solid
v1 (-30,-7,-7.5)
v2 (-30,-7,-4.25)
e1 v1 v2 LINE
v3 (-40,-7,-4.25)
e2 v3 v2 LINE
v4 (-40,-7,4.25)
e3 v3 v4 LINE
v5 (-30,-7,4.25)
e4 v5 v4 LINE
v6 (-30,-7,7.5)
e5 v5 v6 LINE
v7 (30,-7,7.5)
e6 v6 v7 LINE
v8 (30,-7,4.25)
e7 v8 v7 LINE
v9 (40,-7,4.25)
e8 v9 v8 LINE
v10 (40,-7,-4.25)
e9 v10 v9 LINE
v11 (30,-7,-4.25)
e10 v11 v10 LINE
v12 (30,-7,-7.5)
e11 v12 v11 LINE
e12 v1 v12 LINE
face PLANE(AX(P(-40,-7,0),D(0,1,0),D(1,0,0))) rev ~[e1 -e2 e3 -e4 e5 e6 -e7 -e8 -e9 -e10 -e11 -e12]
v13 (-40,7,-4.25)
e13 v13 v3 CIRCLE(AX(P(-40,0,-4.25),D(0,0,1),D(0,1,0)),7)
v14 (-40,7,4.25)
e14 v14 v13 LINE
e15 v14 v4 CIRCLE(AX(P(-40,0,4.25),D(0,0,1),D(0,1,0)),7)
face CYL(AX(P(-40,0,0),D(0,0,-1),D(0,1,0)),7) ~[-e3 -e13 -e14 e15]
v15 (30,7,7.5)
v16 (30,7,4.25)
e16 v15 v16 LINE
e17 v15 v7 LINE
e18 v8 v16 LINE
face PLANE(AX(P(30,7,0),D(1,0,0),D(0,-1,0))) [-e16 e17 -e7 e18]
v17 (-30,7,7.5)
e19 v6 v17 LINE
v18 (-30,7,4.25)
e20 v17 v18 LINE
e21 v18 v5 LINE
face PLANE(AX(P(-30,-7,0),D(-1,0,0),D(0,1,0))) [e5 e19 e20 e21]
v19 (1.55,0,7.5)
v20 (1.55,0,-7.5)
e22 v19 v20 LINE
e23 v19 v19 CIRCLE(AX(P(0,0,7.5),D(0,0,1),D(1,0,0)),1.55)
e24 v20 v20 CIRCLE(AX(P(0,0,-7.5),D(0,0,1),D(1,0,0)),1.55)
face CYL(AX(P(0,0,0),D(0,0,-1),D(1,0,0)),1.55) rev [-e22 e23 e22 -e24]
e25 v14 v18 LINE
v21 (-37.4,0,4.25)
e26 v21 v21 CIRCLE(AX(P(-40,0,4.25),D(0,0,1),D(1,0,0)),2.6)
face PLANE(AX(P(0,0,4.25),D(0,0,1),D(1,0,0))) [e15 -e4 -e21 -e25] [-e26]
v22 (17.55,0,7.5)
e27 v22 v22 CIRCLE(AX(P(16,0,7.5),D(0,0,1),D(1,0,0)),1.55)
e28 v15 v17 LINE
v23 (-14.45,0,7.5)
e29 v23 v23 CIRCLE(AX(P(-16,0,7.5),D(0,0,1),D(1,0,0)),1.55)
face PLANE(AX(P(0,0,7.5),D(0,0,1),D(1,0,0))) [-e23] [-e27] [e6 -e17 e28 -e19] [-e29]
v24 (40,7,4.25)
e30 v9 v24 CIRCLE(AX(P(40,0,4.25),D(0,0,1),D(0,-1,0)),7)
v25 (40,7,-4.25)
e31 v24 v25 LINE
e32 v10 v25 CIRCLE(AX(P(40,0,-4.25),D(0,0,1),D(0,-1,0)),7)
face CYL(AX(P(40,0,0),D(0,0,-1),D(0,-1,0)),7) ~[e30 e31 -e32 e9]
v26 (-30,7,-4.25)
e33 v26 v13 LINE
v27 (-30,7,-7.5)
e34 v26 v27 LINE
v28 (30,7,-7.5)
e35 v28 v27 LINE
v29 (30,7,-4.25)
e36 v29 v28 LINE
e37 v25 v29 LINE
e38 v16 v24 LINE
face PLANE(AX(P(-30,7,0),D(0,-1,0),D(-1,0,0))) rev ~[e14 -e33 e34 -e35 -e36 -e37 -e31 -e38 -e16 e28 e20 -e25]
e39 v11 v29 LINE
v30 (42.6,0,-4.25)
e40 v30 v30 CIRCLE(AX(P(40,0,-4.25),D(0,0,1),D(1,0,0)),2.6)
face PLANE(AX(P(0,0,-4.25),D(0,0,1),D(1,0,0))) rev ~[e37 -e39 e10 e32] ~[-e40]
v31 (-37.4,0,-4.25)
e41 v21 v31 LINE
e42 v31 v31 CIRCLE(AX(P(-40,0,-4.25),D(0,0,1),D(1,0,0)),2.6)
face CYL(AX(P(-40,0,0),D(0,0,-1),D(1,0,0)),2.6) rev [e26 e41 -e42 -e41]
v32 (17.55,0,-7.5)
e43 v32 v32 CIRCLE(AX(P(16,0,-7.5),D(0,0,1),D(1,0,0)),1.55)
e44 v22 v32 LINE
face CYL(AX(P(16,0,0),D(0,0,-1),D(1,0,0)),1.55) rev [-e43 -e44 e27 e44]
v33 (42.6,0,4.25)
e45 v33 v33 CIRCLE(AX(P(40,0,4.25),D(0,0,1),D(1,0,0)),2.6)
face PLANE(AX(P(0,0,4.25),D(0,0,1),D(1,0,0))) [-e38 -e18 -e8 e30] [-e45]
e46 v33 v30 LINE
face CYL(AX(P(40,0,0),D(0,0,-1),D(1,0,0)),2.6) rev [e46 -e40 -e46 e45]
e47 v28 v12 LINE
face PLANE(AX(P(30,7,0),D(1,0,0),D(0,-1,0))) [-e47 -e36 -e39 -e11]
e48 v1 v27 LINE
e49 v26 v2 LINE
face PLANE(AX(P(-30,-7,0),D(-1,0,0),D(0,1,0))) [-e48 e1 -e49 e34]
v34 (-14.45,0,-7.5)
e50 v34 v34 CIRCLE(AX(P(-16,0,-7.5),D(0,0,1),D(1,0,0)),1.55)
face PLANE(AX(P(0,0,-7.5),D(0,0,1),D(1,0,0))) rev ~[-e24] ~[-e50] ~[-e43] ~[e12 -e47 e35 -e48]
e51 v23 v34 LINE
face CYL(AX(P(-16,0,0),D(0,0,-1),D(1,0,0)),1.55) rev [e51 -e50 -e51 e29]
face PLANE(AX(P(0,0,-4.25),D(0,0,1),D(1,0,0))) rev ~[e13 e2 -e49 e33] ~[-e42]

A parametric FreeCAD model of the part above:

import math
import FreeCAD as App
import Part
import Sketcher

V = App.Vector
Q = App.Units.Quantity


def add_polygon(sketch, points):
    """Adds a closed chain of lines whose ends are joined by coincident constraints."""
    first, n = sketch.GeometryCount, len(points)
    for a, b in zip(points, points[1:] + points[:1]):
        sketch.addGeometry(Part.LineSegment(App.Vector(*a, 0), App.Vector(*b, 0)), False)
    for i in range(n):
        sketch.addConstraint(Sketcher.Constraint("Coincident", first + i, 2, first + (i + 1) % n, 1))

doc = App.newDocument("Part")
body = doc.addObject("PartDesign::Body", "Body")

# Sketch on XY plane
sketch1 = body.newObject("Sketcher::SketchObject", "Sketch")
sketch1.AttachmentSupport = (doc.getObject("XY_Plane"), [""])
sketch1.MapMode = "FlatFace"
sketch1.addGeometry([
    Part.ArcOfCircle(Part.Circle(V(-40, 0, 0), V(0, 0, 1), 7), math.radians(90), math.radians(270)),  # 0
    Part.LineSegment(V(-40, -7, 0), V(40, -7, 0)),  # 1
    Part.ArcOfCircle(Part.Circle(V(40, 0, 0), V(0, 0, 1), 7), math.radians(-90), math.radians(90)),  # 2
    Part.LineSegment(V(40, 7, 0), V(-40, 7, 0)),  # 3
    Part.Circle(V(-40, 0, 0), V(0, 0, 1), 2.6),  # 4
    Part.Circle(V(16, 0, 0), V(0, 0, 1), 1.6),  # 5
    Part.Circle(V(-16, 0, 0), V(0, 0, 1), 1.6),  # 6
    Part.Circle(V(0, 0, 0), V(0, 0, 1), 1.6),  # 7
    Part.Circle(V(40, 0, 0), V(0, 0, 1), 2.6),  # 8
], False)
sketch1.addConstraint([
    Sketcher.Constraint("Tangent", 0, 2, 1, 1),
    Sketcher.Constraint("Tangent", 1, 2, 2, 1),
    Sketcher.Constraint("Tangent", 2, 2, 3, 1),
    Sketcher.Constraint("Tangent", 3, 2, 0, 1),
    Sketcher.Constraint("Horizontal", 1),
    Sketcher.Constraint("Horizontal", 3),
    Sketcher.Constraint("Coincident", 7, 3, -1, 1),
    Sketcher.Constraint("Coincident", 4, 3, 0, 3),
    Sketcher.Constraint("Coincident", 8, 3, 2, 3),
    Sketcher.Constraint("Equal", 5, 6),
    Sketcher.Constraint("Equal", 6, 7),
    Sketcher.Constraint("Equal", 4, 8),
    Sketcher.Constraint("Symmetric", 0, 3, 2, 3, -1, 1),
    Sketcher.Constraint("Symmetric", 5, 3, 6, 3, -1, 1),
    Sketcher.Constraint("PointOnObject", 5, 3, -1),
    Sketcher.Constraint("Radius", 0, Q("7 mm")),
    Sketcher.Constraint("Diameter", 4, Q("5.2 mm")),
    Sketcher.Constraint("Diameter", 5, Q("3.1 mm")),
    Sketcher.Constraint("DistanceX", 0, 3, -1, 1, Q("40 mm")),
    Sketcher.Constraint("DistanceX", -1, 1, 5, 3, Q("16 mm")),
])
pad1 = body.newObject("PartDesign::Pad", "Pad")
pad1.Profile = sketch1
pad1.Length = 8.5
pad1.Midplane = True

# Sketch on XY plane
sketch2 = body.newObject("Sketcher::SketchObject", "Sketch001")
sketch2.AttachmentSupport = (doc.getObject("XY_Plane"), [""])
sketch2.MapMode = "FlatFace"
add_polygon(sketch2, [(-30, 7), (-30, -7), (30, -7), (30, 7)])  # lines 0-3
sketch2.addGeometry(Part.Circle(V(-16, 0, 0), V(0, 0, 1), 1.6), False)  # 4
sketch2.addGeometry(Part.Circle(V(0, 0, 0), V(0, 0, 1), 1.6), False)  # 5
sketch2.addGeometry(Part.Circle(V(16, 0, 0), V(0, 0, 1), 1.6), False)  # 6
sketch2.addConstraint([
    Sketcher.Constraint("Vertical", 0),
    Sketcher.Constraint("Horizontal", 1),
    Sketcher.Constraint("Vertical", 2),
    Sketcher.Constraint("Horizontal", 3),
    Sketcher.Constraint("Coincident", 5, 3, -1, 1),
    Sketcher.Constraint("Equal", 4, 5),
    Sketcher.Constraint("Equal", 5, 6),
    Sketcher.Constraint("Symmetric", 4, 3, 6, 3, -1, 1),
    Sketcher.Constraint("Symmetric", 0, 2, 2, 2, -1, 1),
    Sketcher.Constraint("PointOnObject", 4, 3, -1),
    Sketcher.Constraint("Diameter", 4, Q("3.1 mm")),
    Sketcher.Constraint("DistanceX", 1, 1, 1, 2, Q("60 mm")),
    Sketcher.Constraint("DistanceY", 0, 2, 0, 1, Q("14 mm")),
    Sketcher.Constraint("DistanceX", 4, 3, -1, 1, Q("16 mm")),
])
pad2 = body.newObject("PartDesign::Pad", "Pad001")
pad2.Profile = sketch2
pad2.Length = 15
pad2.Midplane = True

doc.recompute()
